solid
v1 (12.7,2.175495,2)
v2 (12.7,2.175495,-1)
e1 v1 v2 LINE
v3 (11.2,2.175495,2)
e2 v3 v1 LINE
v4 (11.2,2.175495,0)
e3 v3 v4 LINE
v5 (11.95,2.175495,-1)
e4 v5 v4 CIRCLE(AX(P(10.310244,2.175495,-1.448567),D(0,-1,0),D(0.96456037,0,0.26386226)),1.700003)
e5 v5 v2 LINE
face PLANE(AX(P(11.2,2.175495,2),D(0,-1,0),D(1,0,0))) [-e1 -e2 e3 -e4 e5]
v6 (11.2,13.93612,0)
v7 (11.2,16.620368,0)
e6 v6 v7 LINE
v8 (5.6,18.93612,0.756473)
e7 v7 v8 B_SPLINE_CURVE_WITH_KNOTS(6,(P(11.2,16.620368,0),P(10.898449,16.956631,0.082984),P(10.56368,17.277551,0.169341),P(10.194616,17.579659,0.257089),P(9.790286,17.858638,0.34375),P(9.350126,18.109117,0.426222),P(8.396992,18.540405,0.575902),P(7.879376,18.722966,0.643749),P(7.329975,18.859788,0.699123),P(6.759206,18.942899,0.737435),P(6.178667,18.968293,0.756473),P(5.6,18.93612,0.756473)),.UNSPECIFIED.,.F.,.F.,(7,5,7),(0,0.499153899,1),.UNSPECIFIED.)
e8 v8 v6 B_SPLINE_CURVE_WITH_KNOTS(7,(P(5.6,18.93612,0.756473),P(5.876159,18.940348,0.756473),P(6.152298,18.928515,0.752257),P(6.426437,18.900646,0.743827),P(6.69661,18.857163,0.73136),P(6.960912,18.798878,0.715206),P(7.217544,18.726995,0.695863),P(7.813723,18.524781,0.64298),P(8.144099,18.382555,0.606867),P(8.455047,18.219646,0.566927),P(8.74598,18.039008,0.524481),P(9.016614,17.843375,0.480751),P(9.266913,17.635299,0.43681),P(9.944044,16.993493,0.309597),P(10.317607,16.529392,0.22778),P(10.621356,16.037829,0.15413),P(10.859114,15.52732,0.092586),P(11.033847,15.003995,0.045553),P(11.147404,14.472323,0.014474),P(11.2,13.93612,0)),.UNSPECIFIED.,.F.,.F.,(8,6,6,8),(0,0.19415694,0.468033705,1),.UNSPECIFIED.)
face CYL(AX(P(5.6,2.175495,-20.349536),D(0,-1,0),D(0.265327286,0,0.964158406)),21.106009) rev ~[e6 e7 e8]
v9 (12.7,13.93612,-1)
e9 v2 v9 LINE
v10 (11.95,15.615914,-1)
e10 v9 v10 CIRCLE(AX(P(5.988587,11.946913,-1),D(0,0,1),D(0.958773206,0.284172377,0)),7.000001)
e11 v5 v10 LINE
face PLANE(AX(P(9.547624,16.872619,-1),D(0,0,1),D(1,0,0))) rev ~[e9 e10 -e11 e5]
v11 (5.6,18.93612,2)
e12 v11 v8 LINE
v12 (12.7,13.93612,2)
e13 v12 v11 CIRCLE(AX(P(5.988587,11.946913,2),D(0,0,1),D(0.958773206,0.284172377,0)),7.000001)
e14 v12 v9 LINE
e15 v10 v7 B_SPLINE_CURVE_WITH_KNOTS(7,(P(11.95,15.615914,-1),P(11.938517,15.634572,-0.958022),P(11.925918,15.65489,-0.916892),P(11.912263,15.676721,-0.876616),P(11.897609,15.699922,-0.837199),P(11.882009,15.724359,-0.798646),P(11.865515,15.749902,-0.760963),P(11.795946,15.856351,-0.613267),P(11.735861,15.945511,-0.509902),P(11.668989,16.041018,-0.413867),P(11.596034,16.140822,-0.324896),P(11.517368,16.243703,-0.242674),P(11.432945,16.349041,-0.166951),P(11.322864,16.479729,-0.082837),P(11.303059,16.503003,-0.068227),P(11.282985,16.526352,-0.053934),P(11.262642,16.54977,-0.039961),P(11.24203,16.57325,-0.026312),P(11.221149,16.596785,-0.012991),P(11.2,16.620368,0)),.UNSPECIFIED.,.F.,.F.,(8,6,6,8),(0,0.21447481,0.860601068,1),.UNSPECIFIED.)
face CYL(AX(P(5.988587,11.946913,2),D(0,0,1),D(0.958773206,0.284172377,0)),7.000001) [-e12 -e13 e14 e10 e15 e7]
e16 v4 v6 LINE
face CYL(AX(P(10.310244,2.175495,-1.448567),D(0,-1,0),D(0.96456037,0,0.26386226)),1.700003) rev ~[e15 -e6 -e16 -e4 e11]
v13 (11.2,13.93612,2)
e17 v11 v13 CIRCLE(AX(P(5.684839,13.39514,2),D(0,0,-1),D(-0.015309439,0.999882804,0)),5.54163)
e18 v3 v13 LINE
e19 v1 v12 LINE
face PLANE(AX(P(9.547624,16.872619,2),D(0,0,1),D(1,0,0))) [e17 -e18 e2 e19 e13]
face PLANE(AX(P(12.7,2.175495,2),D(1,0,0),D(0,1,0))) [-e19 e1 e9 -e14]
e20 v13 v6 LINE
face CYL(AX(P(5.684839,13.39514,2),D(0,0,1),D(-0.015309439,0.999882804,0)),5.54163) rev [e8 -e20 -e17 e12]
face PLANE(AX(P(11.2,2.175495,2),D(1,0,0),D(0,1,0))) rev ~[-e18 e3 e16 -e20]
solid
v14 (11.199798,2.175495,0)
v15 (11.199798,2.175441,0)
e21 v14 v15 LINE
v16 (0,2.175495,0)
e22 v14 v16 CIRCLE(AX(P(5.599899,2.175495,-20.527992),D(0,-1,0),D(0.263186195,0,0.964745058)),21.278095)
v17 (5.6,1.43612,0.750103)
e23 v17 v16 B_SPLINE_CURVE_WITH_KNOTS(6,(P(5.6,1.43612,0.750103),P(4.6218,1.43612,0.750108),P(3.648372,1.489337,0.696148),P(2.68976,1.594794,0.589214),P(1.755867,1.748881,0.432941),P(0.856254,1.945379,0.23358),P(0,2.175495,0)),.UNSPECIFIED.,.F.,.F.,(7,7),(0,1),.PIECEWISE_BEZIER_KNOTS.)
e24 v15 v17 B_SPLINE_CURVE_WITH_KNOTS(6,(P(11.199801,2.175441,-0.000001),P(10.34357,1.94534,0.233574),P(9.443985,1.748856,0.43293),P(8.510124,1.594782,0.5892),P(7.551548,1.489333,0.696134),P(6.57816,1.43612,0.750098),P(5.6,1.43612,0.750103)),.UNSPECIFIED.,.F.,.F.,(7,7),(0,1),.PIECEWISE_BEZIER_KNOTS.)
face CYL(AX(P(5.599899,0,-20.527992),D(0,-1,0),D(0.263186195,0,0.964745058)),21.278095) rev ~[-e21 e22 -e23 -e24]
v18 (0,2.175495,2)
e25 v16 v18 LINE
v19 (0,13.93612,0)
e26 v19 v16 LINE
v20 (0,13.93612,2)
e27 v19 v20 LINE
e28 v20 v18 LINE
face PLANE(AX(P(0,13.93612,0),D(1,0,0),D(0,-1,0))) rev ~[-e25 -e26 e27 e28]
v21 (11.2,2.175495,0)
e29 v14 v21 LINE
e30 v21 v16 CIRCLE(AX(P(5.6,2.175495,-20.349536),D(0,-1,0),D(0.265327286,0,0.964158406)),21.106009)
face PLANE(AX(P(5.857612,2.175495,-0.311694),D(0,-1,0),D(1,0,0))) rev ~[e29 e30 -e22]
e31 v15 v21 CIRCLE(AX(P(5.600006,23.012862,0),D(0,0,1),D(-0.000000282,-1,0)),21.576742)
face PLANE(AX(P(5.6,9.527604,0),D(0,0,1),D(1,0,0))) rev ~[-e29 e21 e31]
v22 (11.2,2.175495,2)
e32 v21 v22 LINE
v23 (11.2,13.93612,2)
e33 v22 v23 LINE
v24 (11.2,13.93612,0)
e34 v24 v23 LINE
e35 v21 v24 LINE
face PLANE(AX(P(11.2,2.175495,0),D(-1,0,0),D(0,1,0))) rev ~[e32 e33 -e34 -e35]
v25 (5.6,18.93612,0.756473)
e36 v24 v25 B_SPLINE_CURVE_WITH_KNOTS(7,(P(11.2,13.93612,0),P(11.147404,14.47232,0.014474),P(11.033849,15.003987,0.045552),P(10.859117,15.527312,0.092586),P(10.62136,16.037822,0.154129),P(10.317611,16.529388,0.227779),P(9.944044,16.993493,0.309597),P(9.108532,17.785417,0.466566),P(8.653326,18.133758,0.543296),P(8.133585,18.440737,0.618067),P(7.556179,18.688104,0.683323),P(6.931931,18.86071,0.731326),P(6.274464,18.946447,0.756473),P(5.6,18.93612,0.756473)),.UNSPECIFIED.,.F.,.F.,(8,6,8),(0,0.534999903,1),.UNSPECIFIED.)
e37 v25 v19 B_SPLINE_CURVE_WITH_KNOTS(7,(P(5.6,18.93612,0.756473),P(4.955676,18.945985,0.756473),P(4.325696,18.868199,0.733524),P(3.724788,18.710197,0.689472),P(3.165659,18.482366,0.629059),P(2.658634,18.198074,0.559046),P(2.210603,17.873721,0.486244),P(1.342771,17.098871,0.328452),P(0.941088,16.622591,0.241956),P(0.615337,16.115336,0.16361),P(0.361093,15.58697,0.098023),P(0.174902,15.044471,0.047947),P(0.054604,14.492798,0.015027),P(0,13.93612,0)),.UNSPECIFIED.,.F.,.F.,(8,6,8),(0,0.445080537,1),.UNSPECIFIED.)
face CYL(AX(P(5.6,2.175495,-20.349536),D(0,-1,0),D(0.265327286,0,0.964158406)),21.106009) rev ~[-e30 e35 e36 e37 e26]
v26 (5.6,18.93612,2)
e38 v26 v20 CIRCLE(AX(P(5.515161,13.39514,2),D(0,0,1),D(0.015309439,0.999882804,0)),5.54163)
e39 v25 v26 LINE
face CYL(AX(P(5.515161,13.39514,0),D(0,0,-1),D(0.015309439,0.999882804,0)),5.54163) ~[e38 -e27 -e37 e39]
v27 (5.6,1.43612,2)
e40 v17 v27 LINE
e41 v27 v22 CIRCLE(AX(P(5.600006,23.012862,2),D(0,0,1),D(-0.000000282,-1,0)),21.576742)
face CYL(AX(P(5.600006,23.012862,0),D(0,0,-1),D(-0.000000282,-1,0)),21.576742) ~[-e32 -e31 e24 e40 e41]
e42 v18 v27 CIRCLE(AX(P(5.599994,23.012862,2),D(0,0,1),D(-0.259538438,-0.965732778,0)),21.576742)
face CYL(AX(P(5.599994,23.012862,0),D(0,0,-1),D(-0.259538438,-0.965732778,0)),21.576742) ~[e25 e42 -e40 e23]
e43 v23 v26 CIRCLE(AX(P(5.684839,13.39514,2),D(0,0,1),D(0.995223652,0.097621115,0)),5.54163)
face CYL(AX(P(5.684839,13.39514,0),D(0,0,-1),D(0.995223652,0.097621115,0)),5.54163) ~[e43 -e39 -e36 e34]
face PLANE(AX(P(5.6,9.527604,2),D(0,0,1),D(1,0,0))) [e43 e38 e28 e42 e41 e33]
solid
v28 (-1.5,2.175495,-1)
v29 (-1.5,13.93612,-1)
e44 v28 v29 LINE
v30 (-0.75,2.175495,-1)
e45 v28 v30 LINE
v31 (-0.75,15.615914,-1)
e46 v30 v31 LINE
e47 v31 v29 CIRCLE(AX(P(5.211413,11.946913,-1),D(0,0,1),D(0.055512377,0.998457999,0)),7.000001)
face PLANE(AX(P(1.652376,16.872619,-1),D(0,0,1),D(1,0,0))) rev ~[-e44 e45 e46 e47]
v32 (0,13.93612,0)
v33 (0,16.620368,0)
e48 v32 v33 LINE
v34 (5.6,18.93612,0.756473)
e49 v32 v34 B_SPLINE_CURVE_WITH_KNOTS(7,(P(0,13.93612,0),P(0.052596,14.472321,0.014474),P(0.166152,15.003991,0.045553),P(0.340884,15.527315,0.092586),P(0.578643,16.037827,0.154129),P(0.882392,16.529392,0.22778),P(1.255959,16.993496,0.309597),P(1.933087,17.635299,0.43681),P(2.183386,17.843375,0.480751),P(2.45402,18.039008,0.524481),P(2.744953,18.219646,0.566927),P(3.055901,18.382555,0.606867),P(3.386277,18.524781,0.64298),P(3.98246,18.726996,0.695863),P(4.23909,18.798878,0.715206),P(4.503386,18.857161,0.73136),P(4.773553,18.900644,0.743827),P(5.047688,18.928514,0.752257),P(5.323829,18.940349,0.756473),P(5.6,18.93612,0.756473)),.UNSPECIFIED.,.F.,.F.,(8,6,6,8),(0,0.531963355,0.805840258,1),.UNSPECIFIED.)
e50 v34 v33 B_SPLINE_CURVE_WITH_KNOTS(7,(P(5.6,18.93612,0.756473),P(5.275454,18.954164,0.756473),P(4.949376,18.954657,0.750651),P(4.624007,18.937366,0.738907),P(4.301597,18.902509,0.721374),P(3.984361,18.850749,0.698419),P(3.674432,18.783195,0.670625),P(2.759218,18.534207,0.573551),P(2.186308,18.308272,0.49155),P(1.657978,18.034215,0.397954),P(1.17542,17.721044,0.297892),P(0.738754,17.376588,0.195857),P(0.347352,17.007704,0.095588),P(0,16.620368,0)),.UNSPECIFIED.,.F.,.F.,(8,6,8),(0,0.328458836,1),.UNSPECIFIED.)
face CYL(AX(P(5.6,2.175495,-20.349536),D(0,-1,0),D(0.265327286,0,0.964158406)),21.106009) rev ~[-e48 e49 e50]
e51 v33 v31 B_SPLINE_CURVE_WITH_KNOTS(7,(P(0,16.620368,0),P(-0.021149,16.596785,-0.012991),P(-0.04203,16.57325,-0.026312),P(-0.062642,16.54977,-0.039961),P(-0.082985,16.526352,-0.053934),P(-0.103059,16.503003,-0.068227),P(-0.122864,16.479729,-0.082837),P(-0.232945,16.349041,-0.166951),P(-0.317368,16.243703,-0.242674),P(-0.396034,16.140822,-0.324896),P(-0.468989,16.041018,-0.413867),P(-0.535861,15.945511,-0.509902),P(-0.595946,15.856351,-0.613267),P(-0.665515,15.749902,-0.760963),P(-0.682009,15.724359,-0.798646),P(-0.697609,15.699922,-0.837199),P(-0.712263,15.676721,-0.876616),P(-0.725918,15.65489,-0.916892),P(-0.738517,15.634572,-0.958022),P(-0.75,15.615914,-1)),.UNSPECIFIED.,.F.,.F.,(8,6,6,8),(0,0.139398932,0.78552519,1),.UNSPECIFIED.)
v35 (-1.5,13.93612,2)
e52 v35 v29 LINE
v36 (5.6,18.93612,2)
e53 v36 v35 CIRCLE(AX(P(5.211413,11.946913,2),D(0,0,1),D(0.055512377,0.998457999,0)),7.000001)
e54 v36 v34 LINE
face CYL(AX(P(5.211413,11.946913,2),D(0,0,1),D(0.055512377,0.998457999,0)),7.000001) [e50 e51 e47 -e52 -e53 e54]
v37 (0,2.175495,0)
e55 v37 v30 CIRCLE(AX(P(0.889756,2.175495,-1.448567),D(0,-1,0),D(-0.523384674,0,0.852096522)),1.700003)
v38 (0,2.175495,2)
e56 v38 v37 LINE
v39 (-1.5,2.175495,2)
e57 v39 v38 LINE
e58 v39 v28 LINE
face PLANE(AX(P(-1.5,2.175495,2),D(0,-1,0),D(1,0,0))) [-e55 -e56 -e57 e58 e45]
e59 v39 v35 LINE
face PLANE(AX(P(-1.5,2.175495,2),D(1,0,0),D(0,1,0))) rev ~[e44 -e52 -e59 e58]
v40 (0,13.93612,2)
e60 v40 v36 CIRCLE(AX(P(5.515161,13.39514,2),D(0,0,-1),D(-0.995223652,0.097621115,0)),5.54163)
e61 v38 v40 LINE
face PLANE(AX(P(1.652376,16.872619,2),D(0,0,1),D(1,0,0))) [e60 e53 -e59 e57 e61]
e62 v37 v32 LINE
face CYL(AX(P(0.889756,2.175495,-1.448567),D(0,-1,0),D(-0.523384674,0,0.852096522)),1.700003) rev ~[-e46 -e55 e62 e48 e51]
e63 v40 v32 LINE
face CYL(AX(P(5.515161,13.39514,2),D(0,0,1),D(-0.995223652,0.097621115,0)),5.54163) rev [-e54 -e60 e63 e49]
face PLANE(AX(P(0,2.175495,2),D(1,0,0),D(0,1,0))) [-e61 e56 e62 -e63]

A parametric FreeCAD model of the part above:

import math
import FreeCAD as App
import Part
import Sketcher
from FreeCAD import Vector
Q = App.Units.Quantity

doc = App.newDocument("Part")
body = doc.addObject("PartDesign::Body", "Body")

# Sketch on XY plane
sketch1 = doc.addObject("Sketcher::SketchObject", "Sketch")
body.addObject(sketch1)
sketch1.AttachmentSupport = (doc.XY_Plane, [""])
sketch1.MapMode = "FlatFace"
sketch1.addGeometry(Part.ArcOfCircle(Part.Circle(Vector(5.684839, 13.39514, 0), Vector(0, 0, 1), 5.54163), math.radians(5.6022), math.radians(90.8772)), False)
sketch1.addGeometry(Part.ArcOfCircle(Part.Circle(Vector(5.515161, 13.39514, 0), Vector(0, 0, 1), 5.54163), math.radians(89.1228), math.radians(174.3978)), False)
sketch1.addGeometry(Part.LineSegment(Vector(0, 13.93612, 0), Vector(0, 2.175495, 0)), False)
sketch1.addGeometry(Part.ArcOfCircle(Part.Circle(Vector(5.599994, 23.012862, 0), Vector(0, 0, 1), 21.576742), math.radians(-105.042676), math.radians(-89.999984)), False)
sketch1.addGeometry(Part.ArcOfCircle(Part.Circle(Vector(5.600006, 23.012862, 0), Vector(0, 0, 1), 21.576742), math.radians(-90.000016), math.radians(-74.957324)), False)
sketch1.addGeometry(Part.LineSegment(Vector(11.2, 2.175495, 0), Vector(11.2, 13.93612, 0)), False)
sketch1.addConstraint(Sketcher.Constraint("Coincident", 0, 2, 1, 1))
sketch1.addConstraint(Sketcher.Constraint("Coincident", 1, 2, 2, 1))
sketch1.addConstraint(Sketcher.Constraint("Coincident", 2, 2, 3, 1))
sketch1.addConstraint(Sketcher.Constraint("Tangent", 3, 2, 4, 1))
sketch1.addConstraint(Sketcher.Constraint("Coincident", 4, 2, 5, 1))
sketch1.addConstraint(Sketcher.Constraint("Coincident", 5, 2, 0, 1))
sketch1.addConstraint(Sketcher.Constraint("Vertical", 2))
sketch1.addConstraint(Sketcher.Constraint("Vertical", 5))
sketch1.addConstraint(Sketcher.Constraint("Equal", 0, 1))
sketch1.addConstraint(Sketcher.Constraint("Equal", 3, 4))
sketch1.addConstraint(Sketcher.Constraint("PointOnObject", 1, 2, -2))
sketch1.addConstraint(Sketcher.Constraint("Horizontal", 0, 3, 1, 3))
sketch1.addConstraint(Sketcher.Constraint("Horizontal", 2, 2, 4, 2))
sketch1.addConstraint(Sketcher.Constraint("Horizontal", 1, 2, 5, 2))
sketch1.addConstraint(Sketcher.Constraint("Vertical", 0, 2, 3, 2))
sketch1.addConstraint(Sketcher.Constraint("DistanceY", 1, 2, 0, 2, Q("5 mm")))
sketch1.addConstraint(Sketcher.Constraint("DistanceX", -1, 1, 0, 2, Q("5.6 mm")))
sketch1.addConstraint(Sketcher.Constraint("DistanceY", 3, 2, 1, 2, Q("12.5 mm")))
sketch1.addConstraint(Sketcher.Constraint("Radius", 0, Q("5.54163 mm")))
sketch1.addConstraint(Sketcher.Constraint("Radius", 3, Q("21.576742 mm")))
sketch1.addConstraint(Sketcher.Constraint("DistanceY", -1, 1, 0, 3, Q("13.39514 mm")))
pad1 = doc.addObject("PartDesign::Pad", "Pad")
body.addObject(pad1)
pad1.Profile = sketch1
pad1.Length = 2

# Sketch on XZ plane
sketch2 = doc.addObject("Sketcher::SketchObject", "Sketch001")
body.addObject(sketch2)
sketch2.AttachmentSupport = (doc.XZ_Plane, [""])
sketch2.MapMode = "FlatFace"
sketch2.addGeometry(Part.LineSegment(Vector(0, 0, 0), Vector(11.2, -0.000055, 0)), False)
sketch2.addGeometry(Part.ArcOfCircle(Part.Circle(Vector(5.599899, -20.527992, 0), Vector(0, 0, 1), 21.278095), math.radians(74.740796), math.radians(105.258641)), False)
sketch2.addConstraint(Sketcher.Constraint("Coincident", 0, 1, 1, 2))
sketch2.addConstraint(Sketcher.Constraint("Coincident", 1, 1, 0, 2))
sketch2.addConstraint(Sketcher.Constraint("Coincident", 0, 1, -1, 1))
sketch2.addConstraint(Sketcher.Constraint("Distance", 0, Q("11.2 mm")))
sketch2.addConstraint(Sketcher.Constraint("Radius", 1, Q("21.278095 mm")))
sketch2.addConstraint(Sketcher.Constraint("DistanceX", -1, 1, 1, 3, Q("5.599899 mm")))
pocket1 = doc.addObject("PartDesign::Pocket", "Pocket")
body.addObject(pocket1)
pocket1.Profile = sketch2
pocket1.Length = 25
body2 = doc.addObject("PartDesign::Body", "Body001")
body2.AllowCompound = True

# Sketch on XY plane
sketch3 = doc.addObject("Sketcher::SketchObject", "Sketch002")
body2.addObject(sketch3)
sketch3.AttachmentSupport = (doc.getObject("XY_Plane001"), [""])
sketch3.MapMode = "FlatFace"
sketch3.AttachmentOffset = App.Placement(Vector(0, 0, 2), App.Rotation())
sketch3.addGeometry(Part.ArcOfCircle(Part.Circle(Vector(5.988587, 11.946913, 0), Vector(0, 0, 1), 7.000001), math.radians(16.509388), math.radians(93.182261)), False)
sketch3.addGeometry(Part.ArcOfCircle(Part.Circle(Vector(5.684839, 13.39514, 0), Vector(0, 0, 1), 5.54163), math.radians(5.602205), math.radians(90.8772)), False)
sketch3.addGeometry(Part.LineSegment(Vector(11.2, 13.93612, 0), Vector(11.2, 2.175495, 0)), False)
sketch3.addGeometry(Part.LineSegment(Vector(11.2, 2.175495, 0), Vector(12.7, 2.175495, 0)), False)
sketch3.addGeometry(Part.LineSegment(Vector(12.7, 2.175495, 0), Vector(12.7, 13.93612, 0)), False)
sketch3.addGeometry(Part.ArcOfCircle(Part.Circle(Vector(5.515161, 13.39514, 0), Vector(0, 0, 1), 5.54163), math.radians(89.1228), math.radians(174.397795)), False)
sketch3.addGeometry(Part.ArcOfCircle(Part.Circle(Vector(5.211413, 11.946913, 0), Vector(0, 0, 1), 7.000001), math.radians(86.817739), math.radians(163.490612)), False)
sketch3.addGeometry(Part.LineSegment(Vector(-1.5, 13.93612, 0), Vector(-1.5, 2.175495, 0)), False)
sketch3.addGeometry(Part.LineSegment(Vector(-1.5, 2.175495, 0), Vector(0, 2.175495, 0)), False)
sketch3.addGeometry(Part.LineSegment(Vector(0, 2.175495, 0), Vector(0, 13.93612, 0)), False)
sketch3.addConstraint(Sketcher.Constraint("Coincident", 0, 2, 1, 2))
sketch3.addConstraint(Sketcher.Constraint("Coincident", 1, 1, 2, 1))
sketch3.addConstraint(Sketcher.Constraint("Coincident", 2, 2, 3, 1))
sketch3.addConstraint(Sketcher.Constraint("Coincident", 3, 2, 4, 1))
sketch3.addConstraint(Sketcher.Constraint("Coincident", 4, 2, 0, 1))
sketch3.addConstraint(Sketcher.Constraint("Coincident", 5, 1, 6, 1))
sketch3.addConstraint(Sketcher.Constraint("Coincident", 6, 2, 7, 1))
sketch3.addConstraint(Sketcher.Constraint("Coincident", 7, 2, 8, 1))
sketch3.addConstraint(Sketcher.Constraint("Coincident", 8, 2, 9, 1))
sketch3.addConstraint(Sketcher.Constraint("Coincident", 9, 2, 5, 2))
sketch3.addConstraint(Sketcher.Constraint("Vertical", 2))
sketch3.addConstraint(Sketcher.Constraint("Horizontal", 3))
sketch3.addConstraint(Sketcher.Constraint("Vertical", 4))
sketch3.addConstraint(Sketcher.Constraint("Vertical", 7))
sketch3.addConstraint(Sketcher.Constraint("Horizontal", 8))
sketch3.addConstraint(Sketcher.Constraint("Vertical", 9))
sketch3.addConstraint(Sketcher.Constraint("Coincident", 5, 1, 0, 2))
sketch3.addConstraint(Sketcher.Constraint("Equal", 1, 5))
sketch3.addConstraint(Sketcher.Constraint("Equal", 0, 6))
sketch3.addConstraint(Sketcher.Constraint("PointOnObject", 8, 2, -2))
sketch3.addConstraint(Sketcher.Constraint("Horizontal", 1, 3, 5, 3))
sketch3.addConstraint(Sketcher.Constraint("Horizontal", 0, 3, 6, 3))
sketch3.addConstraint(Sketcher.Constraint("Horizontal", 1, 1, 4, 2))
sketch3.addConstraint(Sketcher.Constraint("Horizontal", 4, 2, 6, 2))
sketch3.addConstraint(Sketcher.Constraint("Horizontal", 3, 2, 7, 2))
sketch3.addConstraint(Sketcher.Constraint("Horizontal", 6, 2, 9, 2))
sketch3.addConstraint(Sketcher.Constraint("Radius", 0, Q("7.000001 mm")))
sketch3.addConstraint(Sketcher.Constraint("DistanceX", 3, 1, 3, 2, Q("1.5 mm")))
sketch3.addConstraint(Sketcher.Constraint("DistanceY", 1, 1, 0, 2, Q("5 mm")))
sketch3.addConstraint(Sketcher.Constraint("DistanceX", -1, 1, 0, 2, Q("5.6 mm")))
sketch3.addConstraint(Sketcher.Constraint("Radius", 1, Q("5.54163 mm")))
sketch3.addConstraint(Sketcher.Constraint("DistanceY", 2, 2, 2, 1, Q("11.760625 mm")))
sketch3.addConstraint(Sketcher.Constraint("DistanceY", -1, 1, 1, 3, Q("13.39514 mm")))
pad2 = doc.addObject("PartDesign::Pad", "Pad001")
body2.addObject(pad2)
pad2.Profile = sketch3
pad2.Length = 3
pad2.Reversed = True

# Sketch on XZ plane
sketch4 = doc.addObject("Sketcher::SketchObject", "Sketch003")
body2.addObject(sketch4)
sketch4.AttachmentSupport = (doc.getObject("XZ_Plane001"), [""])
sketch4.MapMode = "FlatFace"
sketch4.AttachmentOffset = App.Placement(Vector(0, 0, -2.175495), App.Rotation())
sketch4.addGeometry(Part.LineSegment(Vector(0, -1, 0), Vector(0, 0, 0)), False)
sketch4.addGeometry(Part.ArcOfCircle(Part.Circle(Vector(0.889756, -1.448567, 0), Vector(0, 0, 1), 1.700003), math.radians(121.559564), math.radians(164.700641)), False)
sketch4.addGeometry(Part.LineSegment(Vector(-0.75, -1, 0), Vector(0, -1, 0)), False)
sketch4.addConstraint(Sketcher.Constraint("Coincident", 0, 2, 1, 1))
sketch4.addConstraint(Sketcher.Constraint("Coincident", 1, 2, 2, 1))
sketch4.addConstraint(Sketcher.Constraint("Coincident", 2, 2, 0, 1))
sketch4.addConstraint(Sketcher.Constraint("Vertical", 0))
sketch4.addConstraint(Sketcher.Constraint("Horizontal", 2))
sketch4.addConstraint(Sketcher.Constraint("Coincident", 0, 2, -1, 1))
sketch4.addConstraint(Sketcher.Constraint("DistanceY", 0, 1, 0, 2, Q("1 mm")))
sketch4.addConstraint(Sketcher.Constraint("DistanceX", 2, 1, 2, 2, Q("0.75 mm")))
sketch4.addConstraint(Sketcher.Constraint("Radius", 1, Q("1.700003 mm")))
pocket2 = doc.addObject("PartDesign::Pocket", "Pocket001")
body2.addObject(pocket2)
pocket2.Profile = sketch4
pocket2.Length = 25
body3 = doc.addObject("PartDesign::Body", "Body002")

# Sketch on XZ plane
sketch5 = doc.addObject("Sketcher::SketchObject", "Sketch004")
body3.addObject(sketch5)
sketch5.AttachmentSupport = (doc.getObject("XZ_Plane002"), [""])
sketch5.MapMode = "FlatFace"
sketch5.AttachmentOffset = App.Placement(Vector(0, 0, -2.175495), App.Rotation())
sketch5.addGeometry(Part.LineSegment(Vector(0, -1, 0), Vector(11.95, -1, 0)), False)
sketch5.addGeometry(Part.ArcOfCircle(Part.Circle(Vector(10.310244, -1.448567, 0), Vector(0, 0, 1), 1.700003), math.radians(15.299359), math.radians(58.440436)), False)
sketch5.addGeometry(Part.ArcOfCircle(Part.Circle(Vector(5.6, -20.349536, 0), Vector(0, 0, 1), 21.106009), math.radians(74.613599), math.radians(105.386401)), False)
sketch5.addGeometry(Part.LineSegment(Vector(0, 0, 0), Vector(0, -1, 0)), False)
sketch5.addConstraint(Sketcher.Constraint("Coincident", 0, 2, 1, 1))
sketch5.addConstraint(Sketcher.Constraint("Coincident", 1, 2, 2, 1))
sketch5.addConstraint(Sketcher.Constraint("Coincident", 2, 2, 3, 1))
sketch5.addConstraint(Sketcher.Constraint("Coincident", 3, 2, 0, 1))
sketch5.addConstraint(Sketcher.Constraint("Horizontal", 0))
sketch5.addConstraint(Sketcher.Constraint("Vertical", 3))
sketch5.addConstraint(Sketcher.Constraint("Coincident", 2, 2, -1, 1))
sketch5.addConstraint(Sketcher.Constraint("PointOnObject", 1, 2, -1))
sketch5.addConstraint(Sketcher.Constraint("DistanceY", 3, 2, 3, 1, Q("1 mm")))
sketch5.addConstraint(Sketcher.Constraint("DistanceX", 0, 1, 0, 2, Q("11.95 mm")))
sketch5.addConstraint(Sketcher.Constraint("DistanceX", -1, 1, 2, 3, Q("5.6 mm")))
sketch5.addConstraint(Sketcher.Constraint("Radius", 2, Q("21.106009 mm")))
sketch5.addConstraint(Sketcher.Constraint("Radius", 1, Q("1.700003 mm")))
pad3 = doc.addObject("PartDesign::Pad", "Pad002")
body3.addObject(pad3)
pad3.Profile = sketch5
pad3.Length = 16.772419
pad3.Reversed = True
doc.recompute()

body4 = doc.addObject("PartDesign::Body", "Body003")
body4.BaseFeature = body3
boolean = doc.addObject("PartDesign::Boolean", "Boolean")
body.addObject(boolean)
boolean.Type = "Cut"
boolean.addObjects([body4])
doc.recompute()
body2.AllowCompound = True
doc.recompute()

boolean2 = doc.addObject("PartDesign::Boolean", "Boolean001")
body2.addObject(boolean2)
boolean2.Type = "Cut"
boolean2.addObjects([body3])

doc.recompute()
